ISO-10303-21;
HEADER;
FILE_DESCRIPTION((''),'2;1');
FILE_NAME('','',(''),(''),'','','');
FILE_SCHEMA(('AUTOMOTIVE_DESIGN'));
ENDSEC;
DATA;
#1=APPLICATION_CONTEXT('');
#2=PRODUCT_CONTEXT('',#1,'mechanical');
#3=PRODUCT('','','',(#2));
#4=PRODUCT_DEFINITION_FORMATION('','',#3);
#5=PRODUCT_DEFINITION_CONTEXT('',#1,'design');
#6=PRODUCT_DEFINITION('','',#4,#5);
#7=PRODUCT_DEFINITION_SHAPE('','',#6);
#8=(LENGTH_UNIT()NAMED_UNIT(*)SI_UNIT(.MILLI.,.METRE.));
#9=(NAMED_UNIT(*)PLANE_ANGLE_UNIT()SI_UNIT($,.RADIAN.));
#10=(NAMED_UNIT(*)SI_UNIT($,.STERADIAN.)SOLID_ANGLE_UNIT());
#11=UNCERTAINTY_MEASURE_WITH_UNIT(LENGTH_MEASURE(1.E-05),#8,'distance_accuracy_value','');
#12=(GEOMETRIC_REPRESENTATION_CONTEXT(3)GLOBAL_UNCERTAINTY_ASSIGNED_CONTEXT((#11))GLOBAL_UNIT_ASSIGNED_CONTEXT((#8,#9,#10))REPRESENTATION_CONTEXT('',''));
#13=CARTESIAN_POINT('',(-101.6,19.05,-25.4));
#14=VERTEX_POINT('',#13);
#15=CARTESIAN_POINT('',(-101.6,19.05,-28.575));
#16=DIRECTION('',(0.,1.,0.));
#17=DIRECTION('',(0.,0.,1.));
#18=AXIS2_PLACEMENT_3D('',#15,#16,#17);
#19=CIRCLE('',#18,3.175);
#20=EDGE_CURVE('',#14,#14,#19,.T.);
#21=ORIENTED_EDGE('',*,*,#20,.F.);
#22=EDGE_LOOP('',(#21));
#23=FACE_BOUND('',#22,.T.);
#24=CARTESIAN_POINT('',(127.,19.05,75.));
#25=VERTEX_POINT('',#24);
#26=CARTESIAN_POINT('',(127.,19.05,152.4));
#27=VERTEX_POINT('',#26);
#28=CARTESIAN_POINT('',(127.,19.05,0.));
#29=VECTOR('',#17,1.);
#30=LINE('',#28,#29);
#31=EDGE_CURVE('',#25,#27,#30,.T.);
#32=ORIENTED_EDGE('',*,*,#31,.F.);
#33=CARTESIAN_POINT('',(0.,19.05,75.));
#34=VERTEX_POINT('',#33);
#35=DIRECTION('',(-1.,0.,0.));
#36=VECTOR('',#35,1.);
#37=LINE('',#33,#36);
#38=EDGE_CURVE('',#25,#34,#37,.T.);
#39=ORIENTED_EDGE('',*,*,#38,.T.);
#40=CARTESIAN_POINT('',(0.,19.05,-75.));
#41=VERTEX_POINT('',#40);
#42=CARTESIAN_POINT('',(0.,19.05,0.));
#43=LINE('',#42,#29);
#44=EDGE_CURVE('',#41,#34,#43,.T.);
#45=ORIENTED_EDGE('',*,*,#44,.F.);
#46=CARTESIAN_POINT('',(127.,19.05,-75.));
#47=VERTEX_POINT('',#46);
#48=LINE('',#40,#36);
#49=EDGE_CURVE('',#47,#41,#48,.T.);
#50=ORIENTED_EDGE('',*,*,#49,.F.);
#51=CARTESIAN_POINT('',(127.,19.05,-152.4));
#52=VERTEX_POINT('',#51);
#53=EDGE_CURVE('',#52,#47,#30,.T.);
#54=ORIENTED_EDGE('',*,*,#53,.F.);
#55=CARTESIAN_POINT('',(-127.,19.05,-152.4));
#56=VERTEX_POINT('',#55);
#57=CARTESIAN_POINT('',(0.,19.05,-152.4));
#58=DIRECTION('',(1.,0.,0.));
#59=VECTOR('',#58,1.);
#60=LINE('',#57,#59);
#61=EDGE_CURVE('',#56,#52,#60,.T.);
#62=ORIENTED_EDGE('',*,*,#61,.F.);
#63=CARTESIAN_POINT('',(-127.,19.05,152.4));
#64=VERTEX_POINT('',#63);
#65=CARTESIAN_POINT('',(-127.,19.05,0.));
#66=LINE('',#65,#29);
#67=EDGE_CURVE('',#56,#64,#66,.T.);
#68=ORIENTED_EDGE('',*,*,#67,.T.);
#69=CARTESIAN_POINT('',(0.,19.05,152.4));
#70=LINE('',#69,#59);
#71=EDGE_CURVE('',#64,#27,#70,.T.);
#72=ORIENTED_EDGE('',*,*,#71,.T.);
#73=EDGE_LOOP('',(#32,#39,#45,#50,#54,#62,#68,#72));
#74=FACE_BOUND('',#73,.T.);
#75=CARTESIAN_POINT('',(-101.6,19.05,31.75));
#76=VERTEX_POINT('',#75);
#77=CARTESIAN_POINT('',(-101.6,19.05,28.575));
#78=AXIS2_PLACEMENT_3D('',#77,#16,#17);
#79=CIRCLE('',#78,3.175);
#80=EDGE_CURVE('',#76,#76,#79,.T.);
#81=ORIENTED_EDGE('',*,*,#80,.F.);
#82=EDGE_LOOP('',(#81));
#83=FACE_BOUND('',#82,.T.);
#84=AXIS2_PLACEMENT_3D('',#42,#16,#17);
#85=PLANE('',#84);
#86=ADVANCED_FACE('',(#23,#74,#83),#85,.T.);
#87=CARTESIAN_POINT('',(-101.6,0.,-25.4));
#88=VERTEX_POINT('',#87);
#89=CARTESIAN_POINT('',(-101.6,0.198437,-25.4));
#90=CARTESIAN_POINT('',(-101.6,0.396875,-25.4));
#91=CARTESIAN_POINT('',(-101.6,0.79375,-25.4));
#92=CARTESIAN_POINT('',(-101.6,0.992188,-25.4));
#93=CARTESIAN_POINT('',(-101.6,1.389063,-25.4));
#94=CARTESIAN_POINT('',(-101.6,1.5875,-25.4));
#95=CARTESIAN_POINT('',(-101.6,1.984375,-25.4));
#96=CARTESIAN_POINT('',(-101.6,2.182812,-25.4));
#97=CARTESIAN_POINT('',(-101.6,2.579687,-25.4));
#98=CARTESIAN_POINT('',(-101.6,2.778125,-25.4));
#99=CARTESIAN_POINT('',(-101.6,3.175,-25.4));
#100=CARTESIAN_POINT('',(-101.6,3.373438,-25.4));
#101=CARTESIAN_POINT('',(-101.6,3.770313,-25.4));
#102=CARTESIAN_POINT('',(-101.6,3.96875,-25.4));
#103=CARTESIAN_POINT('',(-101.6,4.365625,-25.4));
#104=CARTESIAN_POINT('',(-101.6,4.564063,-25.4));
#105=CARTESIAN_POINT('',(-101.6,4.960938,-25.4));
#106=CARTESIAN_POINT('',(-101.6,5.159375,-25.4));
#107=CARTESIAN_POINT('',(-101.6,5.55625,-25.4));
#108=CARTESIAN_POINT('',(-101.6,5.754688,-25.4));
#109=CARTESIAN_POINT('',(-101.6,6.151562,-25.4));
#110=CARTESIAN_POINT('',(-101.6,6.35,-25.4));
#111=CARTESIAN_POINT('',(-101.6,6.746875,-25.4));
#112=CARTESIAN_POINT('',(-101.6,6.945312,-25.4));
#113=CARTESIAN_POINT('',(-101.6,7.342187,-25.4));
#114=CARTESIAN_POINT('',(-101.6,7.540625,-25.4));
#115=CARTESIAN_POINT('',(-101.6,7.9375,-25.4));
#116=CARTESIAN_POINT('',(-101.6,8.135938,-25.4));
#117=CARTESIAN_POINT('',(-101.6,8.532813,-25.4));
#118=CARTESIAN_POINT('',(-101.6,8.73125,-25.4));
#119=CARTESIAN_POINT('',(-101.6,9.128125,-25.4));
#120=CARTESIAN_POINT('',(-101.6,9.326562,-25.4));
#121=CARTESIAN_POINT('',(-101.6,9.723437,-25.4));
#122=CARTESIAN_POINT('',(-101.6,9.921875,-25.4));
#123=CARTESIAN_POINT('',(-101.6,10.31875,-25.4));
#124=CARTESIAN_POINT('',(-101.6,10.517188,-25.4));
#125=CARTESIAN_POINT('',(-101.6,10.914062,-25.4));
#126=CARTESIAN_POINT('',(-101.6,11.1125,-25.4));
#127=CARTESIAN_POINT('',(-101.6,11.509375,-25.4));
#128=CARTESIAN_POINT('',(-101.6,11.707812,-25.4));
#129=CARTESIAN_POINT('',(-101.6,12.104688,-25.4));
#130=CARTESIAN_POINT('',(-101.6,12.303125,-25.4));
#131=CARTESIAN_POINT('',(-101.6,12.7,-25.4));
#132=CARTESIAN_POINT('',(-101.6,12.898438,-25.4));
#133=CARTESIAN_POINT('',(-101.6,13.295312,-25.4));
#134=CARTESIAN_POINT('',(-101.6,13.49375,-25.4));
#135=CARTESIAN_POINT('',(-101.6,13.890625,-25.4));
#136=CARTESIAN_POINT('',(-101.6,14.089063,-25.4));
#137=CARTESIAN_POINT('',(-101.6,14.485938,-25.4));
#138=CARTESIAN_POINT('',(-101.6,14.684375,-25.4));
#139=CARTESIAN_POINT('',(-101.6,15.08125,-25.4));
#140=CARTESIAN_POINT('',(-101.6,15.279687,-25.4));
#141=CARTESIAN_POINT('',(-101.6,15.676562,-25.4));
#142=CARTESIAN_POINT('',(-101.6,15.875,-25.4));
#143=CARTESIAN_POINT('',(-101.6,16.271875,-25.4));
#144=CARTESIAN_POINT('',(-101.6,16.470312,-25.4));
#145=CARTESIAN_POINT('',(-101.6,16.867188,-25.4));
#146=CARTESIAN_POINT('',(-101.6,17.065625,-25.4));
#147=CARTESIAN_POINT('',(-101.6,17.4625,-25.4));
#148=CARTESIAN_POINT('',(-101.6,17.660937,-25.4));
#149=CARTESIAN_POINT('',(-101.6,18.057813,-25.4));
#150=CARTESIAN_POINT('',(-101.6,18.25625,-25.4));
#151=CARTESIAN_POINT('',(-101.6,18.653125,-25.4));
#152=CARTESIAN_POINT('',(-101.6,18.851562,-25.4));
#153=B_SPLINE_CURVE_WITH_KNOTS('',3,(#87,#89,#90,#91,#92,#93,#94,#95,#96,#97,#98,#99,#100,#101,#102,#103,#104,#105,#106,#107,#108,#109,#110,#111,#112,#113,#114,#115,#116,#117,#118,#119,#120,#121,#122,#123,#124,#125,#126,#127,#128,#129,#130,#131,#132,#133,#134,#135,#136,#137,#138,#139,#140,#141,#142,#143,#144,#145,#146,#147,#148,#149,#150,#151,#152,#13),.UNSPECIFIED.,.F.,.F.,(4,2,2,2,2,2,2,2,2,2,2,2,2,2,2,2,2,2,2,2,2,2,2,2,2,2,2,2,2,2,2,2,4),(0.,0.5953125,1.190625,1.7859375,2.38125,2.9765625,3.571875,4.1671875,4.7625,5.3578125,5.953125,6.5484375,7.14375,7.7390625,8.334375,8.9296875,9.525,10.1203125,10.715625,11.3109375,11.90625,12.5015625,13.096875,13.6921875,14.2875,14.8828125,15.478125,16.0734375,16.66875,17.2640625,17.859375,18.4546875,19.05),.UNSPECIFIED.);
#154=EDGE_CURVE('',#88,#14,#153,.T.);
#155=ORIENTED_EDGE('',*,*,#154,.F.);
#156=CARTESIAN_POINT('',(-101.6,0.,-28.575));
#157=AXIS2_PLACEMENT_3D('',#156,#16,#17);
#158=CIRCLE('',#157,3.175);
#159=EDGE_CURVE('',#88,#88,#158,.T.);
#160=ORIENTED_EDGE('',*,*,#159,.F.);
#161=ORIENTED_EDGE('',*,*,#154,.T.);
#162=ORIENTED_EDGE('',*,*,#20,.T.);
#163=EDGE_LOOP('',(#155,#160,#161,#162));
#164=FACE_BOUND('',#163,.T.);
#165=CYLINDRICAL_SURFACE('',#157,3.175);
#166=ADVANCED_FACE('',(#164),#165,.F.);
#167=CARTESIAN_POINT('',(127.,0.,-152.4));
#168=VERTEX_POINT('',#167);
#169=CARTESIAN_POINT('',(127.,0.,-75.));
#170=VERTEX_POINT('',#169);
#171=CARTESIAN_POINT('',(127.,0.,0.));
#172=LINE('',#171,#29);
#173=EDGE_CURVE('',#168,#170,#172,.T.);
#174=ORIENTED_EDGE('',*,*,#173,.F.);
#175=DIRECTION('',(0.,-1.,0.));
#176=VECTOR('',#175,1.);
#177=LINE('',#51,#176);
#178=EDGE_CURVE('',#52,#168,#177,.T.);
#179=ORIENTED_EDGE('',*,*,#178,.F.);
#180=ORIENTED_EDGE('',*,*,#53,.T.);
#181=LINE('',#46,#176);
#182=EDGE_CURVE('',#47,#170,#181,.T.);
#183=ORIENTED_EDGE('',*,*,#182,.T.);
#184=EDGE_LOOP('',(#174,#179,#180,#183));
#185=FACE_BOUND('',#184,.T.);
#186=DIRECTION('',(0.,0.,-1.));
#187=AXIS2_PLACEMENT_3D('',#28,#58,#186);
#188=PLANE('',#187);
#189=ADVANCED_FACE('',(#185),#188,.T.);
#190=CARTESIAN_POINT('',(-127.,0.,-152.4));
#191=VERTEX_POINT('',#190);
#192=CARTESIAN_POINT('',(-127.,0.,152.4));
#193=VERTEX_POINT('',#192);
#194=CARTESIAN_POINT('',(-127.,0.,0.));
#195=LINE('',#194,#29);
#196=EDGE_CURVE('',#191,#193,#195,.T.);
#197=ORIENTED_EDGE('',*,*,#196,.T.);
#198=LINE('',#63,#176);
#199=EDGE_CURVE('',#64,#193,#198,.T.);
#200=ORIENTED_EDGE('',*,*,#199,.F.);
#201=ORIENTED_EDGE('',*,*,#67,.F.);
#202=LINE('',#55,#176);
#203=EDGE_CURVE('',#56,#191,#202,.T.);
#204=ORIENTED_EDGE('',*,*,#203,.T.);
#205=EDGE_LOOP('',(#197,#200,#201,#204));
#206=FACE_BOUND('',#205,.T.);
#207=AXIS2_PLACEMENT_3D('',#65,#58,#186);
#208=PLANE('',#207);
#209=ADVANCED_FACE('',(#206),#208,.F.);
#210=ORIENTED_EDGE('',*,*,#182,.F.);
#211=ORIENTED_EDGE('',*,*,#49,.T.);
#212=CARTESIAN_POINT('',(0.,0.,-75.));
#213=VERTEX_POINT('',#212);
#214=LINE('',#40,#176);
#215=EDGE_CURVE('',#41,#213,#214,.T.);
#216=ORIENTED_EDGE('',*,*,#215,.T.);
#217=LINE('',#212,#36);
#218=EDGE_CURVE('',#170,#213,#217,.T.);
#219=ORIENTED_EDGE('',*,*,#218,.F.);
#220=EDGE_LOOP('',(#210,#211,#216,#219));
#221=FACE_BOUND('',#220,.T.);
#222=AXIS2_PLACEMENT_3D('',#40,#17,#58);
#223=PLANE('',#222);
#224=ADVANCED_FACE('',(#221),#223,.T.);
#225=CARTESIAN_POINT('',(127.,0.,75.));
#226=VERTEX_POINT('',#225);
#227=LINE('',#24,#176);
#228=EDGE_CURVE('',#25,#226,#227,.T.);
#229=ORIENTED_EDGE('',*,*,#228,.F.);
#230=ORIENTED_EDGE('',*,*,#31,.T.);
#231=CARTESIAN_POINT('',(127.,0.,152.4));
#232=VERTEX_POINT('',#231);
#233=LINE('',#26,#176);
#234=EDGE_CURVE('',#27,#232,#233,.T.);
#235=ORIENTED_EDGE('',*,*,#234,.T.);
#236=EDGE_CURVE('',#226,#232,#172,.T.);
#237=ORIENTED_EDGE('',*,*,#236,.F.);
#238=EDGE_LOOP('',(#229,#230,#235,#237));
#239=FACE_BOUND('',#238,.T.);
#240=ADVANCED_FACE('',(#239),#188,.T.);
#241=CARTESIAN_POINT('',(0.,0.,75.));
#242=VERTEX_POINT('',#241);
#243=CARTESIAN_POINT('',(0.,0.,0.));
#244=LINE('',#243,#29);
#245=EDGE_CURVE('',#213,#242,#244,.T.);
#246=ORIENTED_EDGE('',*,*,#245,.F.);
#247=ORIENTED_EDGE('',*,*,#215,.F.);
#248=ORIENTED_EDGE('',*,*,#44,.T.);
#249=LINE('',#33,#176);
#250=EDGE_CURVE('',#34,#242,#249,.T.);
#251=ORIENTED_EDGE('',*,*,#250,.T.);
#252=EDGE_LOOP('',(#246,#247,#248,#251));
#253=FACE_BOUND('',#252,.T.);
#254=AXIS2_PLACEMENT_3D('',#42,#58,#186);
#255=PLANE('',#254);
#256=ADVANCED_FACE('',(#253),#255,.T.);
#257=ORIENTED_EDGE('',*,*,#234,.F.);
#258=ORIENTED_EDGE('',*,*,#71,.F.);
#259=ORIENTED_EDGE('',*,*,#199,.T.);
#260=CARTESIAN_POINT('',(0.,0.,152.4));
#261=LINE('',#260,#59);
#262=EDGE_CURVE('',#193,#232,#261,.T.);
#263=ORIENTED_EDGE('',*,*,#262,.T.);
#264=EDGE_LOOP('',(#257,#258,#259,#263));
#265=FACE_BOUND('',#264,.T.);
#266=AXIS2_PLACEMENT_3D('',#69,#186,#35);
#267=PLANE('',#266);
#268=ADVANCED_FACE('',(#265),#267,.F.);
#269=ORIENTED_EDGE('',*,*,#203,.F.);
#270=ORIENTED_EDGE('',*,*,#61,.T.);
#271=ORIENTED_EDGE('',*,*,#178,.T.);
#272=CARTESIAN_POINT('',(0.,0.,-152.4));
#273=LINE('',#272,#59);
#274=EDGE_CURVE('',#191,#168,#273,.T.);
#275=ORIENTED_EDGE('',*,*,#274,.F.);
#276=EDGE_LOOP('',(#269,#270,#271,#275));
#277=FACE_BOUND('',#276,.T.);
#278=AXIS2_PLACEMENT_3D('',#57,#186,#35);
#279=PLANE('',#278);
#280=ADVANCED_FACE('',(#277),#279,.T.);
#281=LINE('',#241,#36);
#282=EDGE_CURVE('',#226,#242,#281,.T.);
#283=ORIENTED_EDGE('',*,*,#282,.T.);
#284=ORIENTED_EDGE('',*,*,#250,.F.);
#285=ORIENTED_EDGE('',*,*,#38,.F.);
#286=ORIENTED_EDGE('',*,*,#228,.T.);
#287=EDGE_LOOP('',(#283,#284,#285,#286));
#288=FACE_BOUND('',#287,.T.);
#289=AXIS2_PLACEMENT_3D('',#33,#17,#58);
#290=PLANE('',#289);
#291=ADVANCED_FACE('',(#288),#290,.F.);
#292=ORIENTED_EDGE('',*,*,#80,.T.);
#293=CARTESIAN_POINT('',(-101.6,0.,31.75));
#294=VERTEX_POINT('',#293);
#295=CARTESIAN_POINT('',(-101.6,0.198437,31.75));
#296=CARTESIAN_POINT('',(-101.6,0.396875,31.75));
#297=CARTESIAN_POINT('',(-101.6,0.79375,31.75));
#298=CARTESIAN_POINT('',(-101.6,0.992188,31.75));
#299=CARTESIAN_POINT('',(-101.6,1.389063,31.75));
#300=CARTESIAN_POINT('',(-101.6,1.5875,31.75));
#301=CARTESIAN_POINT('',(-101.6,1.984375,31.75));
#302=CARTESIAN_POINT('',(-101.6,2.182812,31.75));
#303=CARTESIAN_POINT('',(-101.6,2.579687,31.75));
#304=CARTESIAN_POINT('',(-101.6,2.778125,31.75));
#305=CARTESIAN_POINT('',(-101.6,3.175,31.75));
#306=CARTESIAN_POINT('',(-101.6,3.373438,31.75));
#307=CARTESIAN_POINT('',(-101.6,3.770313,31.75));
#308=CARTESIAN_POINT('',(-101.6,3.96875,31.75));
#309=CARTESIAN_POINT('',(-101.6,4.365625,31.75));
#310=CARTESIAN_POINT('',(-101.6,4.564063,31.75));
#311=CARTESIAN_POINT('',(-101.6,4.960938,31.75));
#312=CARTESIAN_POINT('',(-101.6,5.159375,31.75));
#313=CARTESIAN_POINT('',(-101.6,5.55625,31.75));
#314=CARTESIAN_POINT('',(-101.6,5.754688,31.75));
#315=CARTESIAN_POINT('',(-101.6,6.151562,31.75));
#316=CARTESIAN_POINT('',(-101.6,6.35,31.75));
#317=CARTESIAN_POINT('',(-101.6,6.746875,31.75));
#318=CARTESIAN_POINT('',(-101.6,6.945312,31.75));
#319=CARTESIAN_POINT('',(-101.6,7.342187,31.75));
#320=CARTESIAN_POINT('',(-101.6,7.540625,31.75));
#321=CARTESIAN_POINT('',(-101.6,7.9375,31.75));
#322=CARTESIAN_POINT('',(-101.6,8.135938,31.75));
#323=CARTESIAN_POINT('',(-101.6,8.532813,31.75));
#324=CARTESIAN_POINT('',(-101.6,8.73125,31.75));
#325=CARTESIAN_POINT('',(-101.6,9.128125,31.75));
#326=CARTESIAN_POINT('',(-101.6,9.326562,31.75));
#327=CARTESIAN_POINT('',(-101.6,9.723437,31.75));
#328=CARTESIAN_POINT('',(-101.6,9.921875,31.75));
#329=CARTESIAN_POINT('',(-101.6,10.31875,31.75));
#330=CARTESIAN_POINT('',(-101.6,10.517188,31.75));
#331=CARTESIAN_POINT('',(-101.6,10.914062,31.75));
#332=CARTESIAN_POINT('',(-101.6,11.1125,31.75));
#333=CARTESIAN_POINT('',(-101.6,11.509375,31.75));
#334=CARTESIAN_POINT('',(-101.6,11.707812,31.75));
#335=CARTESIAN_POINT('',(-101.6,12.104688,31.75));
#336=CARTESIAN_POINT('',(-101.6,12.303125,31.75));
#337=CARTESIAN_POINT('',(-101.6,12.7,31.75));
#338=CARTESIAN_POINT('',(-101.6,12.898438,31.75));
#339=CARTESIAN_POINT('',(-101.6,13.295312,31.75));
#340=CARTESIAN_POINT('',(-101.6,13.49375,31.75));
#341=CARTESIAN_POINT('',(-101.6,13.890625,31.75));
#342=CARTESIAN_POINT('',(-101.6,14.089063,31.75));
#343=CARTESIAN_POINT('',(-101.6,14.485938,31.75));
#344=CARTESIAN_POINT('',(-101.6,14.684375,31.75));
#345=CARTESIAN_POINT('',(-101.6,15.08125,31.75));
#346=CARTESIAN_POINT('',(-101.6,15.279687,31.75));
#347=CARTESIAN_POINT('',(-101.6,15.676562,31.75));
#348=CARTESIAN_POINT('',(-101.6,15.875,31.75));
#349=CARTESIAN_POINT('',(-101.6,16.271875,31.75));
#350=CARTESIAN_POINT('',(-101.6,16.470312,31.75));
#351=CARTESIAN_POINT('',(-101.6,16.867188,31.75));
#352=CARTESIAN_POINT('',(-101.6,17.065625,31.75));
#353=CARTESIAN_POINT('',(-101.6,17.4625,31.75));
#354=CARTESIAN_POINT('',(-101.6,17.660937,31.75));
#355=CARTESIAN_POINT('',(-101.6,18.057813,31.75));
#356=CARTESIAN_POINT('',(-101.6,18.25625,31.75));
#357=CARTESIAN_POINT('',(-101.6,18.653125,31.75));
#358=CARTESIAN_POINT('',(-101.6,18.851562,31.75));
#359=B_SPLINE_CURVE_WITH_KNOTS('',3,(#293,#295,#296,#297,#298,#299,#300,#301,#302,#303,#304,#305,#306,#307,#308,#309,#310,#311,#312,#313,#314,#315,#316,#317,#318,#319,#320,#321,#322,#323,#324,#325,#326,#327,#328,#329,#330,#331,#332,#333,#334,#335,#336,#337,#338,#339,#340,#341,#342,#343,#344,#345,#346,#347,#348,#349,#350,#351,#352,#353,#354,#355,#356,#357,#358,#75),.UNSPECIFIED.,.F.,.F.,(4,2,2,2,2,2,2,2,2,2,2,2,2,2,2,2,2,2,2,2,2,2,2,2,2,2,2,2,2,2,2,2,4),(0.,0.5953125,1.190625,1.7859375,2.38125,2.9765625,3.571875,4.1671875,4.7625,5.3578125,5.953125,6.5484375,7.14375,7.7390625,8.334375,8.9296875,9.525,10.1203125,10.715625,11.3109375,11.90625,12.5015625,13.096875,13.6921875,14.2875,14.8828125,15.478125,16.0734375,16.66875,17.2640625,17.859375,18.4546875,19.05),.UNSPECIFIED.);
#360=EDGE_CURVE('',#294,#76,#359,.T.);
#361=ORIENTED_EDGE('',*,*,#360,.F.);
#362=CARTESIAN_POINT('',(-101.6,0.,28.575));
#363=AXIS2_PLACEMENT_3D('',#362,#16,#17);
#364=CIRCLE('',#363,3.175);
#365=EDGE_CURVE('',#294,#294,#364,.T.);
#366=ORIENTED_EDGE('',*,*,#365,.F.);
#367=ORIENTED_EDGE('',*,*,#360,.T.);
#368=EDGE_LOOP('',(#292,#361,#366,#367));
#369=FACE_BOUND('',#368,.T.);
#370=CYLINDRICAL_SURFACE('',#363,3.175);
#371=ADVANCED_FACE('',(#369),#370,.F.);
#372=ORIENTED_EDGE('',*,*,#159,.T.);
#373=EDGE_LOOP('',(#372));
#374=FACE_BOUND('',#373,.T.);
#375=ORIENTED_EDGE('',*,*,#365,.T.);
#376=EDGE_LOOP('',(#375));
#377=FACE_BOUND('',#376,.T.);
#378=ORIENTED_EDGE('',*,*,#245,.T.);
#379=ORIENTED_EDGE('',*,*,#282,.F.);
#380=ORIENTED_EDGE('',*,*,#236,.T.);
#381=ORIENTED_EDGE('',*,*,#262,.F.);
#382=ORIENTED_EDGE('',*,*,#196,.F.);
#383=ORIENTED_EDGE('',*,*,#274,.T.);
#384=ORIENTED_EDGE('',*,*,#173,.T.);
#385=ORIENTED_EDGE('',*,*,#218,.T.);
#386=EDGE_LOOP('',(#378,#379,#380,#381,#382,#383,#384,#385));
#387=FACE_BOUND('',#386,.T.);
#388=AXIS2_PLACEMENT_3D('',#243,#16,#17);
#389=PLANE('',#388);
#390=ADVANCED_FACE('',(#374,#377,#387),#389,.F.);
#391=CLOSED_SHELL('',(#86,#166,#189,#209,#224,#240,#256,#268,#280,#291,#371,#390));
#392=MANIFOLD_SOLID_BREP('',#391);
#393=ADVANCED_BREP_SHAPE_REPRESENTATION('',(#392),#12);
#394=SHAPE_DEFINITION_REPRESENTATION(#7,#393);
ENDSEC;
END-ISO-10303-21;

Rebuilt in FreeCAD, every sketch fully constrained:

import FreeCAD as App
import Part
import Sketcher

V = App.Vector
Q = App.Units.Quantity

doc = App.newDocument("Part")
body = doc.addObject("PartDesign::Body", "Body")

# Sketch on XZ plane
sketch1 = body.newObject("Sketcher::SketchObject", "Sketch")
sketch1.AttachmentSupport = (doc.getObject("XZ_Plane"), [""])
sketch1.MapMode = "FlatFace"
sketch1.addGeometry(Part.LineSegment(V(127, -152.4, 0), V(-127, -152.4, 0)), False)
sketch1.addGeometry(Part.LineSegment(V(-127, -152.4, 0), V(-127, 152.4, 0)), False)
sketch1.addGeometry(Part.LineSegment(V(-127, 152.4, 0), V(127, 152.4, 0)), False)
sketch1.addGeometry(Part.LineSegment(V(127, 152.4, 0), V(127, 75, 0)), False)
sketch1.addGeometry(Part.LineSegment(V(127, 75, 0), V(0, 75, 0)), False)
sketch1.addGeometry(Part.LineSegment(V(0, 75, 0), V(0, -75, 0)), False)
sketch1.addGeometry(Part.LineSegment(V(0, -75, 0), V(127, -75, 0)), False)
sketch1.addGeometry(Part.LineSegment(V(127, -75, 0), V(127, -152.4, 0)), False)
sketch1.addConstraint(Sketcher.Constraint("Coincident", 0, 2, 1, 1))
sketch1.addConstraint(Sketcher.Constraint("Coincident", 1, 2, 2, 1))
sketch1.addConstraint(Sketcher.Constraint("Coincident", 2, 2, 3, 1))
sketch1.addConstraint(Sketcher.Constraint("Coincident", 3, 2, 4, 1))
sketch1.addConstraint(Sketcher.Constraint("Coincident", 4, 2, 5, 1))
sketch1.addConstraint(Sketcher.Constraint("Coincident", 5, 2, 6, 1))
sketch1.addConstraint(Sketcher.Constraint("Coincident", 6, 2, 7, 1))
sketch1.addConstraint(Sketcher.Constraint("Coincident", 7, 2, 0, 1))
sketch1.addConstraint(Sketcher.Constraint("Horizontal", 0))
sketch1.addConstraint(Sketcher.Constraint("Vertical", 1))
sketch1.addConstraint(Sketcher.Constraint("Horizontal", 2))
sketch1.addConstraint(Sketcher.Constraint("Vertical", 3))
sketch1.addConstraint(Sketcher.Constraint("Horizontal", 4))
sketch1.addConstraint(Sketcher.Constraint("Vertical", 5))
sketch1.addConstraint(Sketcher.Constraint("Horizontal", 6))
sketch1.addConstraint(Sketcher.Constraint("Vertical", 7))
sketch1.addConstraint(Sketcher.Constraint("Symmetric", 0, 2, 2, 2, -1, 1))
sketch1.addConstraint(Sketcher.Constraint("Symmetric", 4, 2, 5, 2, -1, 1))
sketch1.addConstraint(Sketcher.Constraint("Vertical", 3, 2, 6, 2))
sketch1.addConstraint(Sketcher.Constraint("DistanceX", 0, 2, 0, 1, Q("10 in")))
sketch1.addConstraint(Sketcher.Constraint("DistanceY", 1, 1, 1, 2, Q("12 in")))
sketch1.addConstraint(Sketcher.Constraint("DistanceY", 3, 2, 3, 1, 77.4))
pad1 = body.newObject("PartDesign::Pad", "Pad")
pad1.Profile = sketch1
pad1.Length = Q("0.75 in")
pad1.Reversed = True

# Sketch on XZ plane
sketch2 = body.newObject("Sketcher::SketchObject", "Sketch001")
sketch2.AttachmentSupport = (doc.getObject("XZ_Plane"), [""])
sketch2.MapMode = "FlatFace"
sketch2.AttachmentOffset = App.Placement(V(0, 0, -0.75 * 25.4), App.Rotation())
sketch2.addGeometry(Part.Circle(V(-101.6, -28.575, 0), V(0, 0, 1), 3.175), False)
sketch2.addGeometry(Part.Circle(V(-101.6, 28.575, 0), V(0, 0, 1), 3.175), False)
sketch2.addConstraint(Sketcher.Constraint("Equal", 0, 1))
sketch2.addConstraint(Sketcher.Constraint("Symmetric", 0, 3, 1, 3, -1))
sketch2.addConstraint(Sketcher.Constraint("Diameter", 0, Q("0.25 in")))
sketch2.addConstraint(Sketcher.Constraint("DistanceX", 0, 3, -1, 1, Q("4 in")))
sketch2.addConstraint(Sketcher.Constraint("DistanceY", 0, 3, 1, 3, Q("2.25 in")))
pocket1 = body.newObject("PartDesign::Pocket", "Pocket")
pocket1.Profile = sketch2
pocket1.Type = "ThroughAll"
pocket1.Reversed = True

doc.recompute()
